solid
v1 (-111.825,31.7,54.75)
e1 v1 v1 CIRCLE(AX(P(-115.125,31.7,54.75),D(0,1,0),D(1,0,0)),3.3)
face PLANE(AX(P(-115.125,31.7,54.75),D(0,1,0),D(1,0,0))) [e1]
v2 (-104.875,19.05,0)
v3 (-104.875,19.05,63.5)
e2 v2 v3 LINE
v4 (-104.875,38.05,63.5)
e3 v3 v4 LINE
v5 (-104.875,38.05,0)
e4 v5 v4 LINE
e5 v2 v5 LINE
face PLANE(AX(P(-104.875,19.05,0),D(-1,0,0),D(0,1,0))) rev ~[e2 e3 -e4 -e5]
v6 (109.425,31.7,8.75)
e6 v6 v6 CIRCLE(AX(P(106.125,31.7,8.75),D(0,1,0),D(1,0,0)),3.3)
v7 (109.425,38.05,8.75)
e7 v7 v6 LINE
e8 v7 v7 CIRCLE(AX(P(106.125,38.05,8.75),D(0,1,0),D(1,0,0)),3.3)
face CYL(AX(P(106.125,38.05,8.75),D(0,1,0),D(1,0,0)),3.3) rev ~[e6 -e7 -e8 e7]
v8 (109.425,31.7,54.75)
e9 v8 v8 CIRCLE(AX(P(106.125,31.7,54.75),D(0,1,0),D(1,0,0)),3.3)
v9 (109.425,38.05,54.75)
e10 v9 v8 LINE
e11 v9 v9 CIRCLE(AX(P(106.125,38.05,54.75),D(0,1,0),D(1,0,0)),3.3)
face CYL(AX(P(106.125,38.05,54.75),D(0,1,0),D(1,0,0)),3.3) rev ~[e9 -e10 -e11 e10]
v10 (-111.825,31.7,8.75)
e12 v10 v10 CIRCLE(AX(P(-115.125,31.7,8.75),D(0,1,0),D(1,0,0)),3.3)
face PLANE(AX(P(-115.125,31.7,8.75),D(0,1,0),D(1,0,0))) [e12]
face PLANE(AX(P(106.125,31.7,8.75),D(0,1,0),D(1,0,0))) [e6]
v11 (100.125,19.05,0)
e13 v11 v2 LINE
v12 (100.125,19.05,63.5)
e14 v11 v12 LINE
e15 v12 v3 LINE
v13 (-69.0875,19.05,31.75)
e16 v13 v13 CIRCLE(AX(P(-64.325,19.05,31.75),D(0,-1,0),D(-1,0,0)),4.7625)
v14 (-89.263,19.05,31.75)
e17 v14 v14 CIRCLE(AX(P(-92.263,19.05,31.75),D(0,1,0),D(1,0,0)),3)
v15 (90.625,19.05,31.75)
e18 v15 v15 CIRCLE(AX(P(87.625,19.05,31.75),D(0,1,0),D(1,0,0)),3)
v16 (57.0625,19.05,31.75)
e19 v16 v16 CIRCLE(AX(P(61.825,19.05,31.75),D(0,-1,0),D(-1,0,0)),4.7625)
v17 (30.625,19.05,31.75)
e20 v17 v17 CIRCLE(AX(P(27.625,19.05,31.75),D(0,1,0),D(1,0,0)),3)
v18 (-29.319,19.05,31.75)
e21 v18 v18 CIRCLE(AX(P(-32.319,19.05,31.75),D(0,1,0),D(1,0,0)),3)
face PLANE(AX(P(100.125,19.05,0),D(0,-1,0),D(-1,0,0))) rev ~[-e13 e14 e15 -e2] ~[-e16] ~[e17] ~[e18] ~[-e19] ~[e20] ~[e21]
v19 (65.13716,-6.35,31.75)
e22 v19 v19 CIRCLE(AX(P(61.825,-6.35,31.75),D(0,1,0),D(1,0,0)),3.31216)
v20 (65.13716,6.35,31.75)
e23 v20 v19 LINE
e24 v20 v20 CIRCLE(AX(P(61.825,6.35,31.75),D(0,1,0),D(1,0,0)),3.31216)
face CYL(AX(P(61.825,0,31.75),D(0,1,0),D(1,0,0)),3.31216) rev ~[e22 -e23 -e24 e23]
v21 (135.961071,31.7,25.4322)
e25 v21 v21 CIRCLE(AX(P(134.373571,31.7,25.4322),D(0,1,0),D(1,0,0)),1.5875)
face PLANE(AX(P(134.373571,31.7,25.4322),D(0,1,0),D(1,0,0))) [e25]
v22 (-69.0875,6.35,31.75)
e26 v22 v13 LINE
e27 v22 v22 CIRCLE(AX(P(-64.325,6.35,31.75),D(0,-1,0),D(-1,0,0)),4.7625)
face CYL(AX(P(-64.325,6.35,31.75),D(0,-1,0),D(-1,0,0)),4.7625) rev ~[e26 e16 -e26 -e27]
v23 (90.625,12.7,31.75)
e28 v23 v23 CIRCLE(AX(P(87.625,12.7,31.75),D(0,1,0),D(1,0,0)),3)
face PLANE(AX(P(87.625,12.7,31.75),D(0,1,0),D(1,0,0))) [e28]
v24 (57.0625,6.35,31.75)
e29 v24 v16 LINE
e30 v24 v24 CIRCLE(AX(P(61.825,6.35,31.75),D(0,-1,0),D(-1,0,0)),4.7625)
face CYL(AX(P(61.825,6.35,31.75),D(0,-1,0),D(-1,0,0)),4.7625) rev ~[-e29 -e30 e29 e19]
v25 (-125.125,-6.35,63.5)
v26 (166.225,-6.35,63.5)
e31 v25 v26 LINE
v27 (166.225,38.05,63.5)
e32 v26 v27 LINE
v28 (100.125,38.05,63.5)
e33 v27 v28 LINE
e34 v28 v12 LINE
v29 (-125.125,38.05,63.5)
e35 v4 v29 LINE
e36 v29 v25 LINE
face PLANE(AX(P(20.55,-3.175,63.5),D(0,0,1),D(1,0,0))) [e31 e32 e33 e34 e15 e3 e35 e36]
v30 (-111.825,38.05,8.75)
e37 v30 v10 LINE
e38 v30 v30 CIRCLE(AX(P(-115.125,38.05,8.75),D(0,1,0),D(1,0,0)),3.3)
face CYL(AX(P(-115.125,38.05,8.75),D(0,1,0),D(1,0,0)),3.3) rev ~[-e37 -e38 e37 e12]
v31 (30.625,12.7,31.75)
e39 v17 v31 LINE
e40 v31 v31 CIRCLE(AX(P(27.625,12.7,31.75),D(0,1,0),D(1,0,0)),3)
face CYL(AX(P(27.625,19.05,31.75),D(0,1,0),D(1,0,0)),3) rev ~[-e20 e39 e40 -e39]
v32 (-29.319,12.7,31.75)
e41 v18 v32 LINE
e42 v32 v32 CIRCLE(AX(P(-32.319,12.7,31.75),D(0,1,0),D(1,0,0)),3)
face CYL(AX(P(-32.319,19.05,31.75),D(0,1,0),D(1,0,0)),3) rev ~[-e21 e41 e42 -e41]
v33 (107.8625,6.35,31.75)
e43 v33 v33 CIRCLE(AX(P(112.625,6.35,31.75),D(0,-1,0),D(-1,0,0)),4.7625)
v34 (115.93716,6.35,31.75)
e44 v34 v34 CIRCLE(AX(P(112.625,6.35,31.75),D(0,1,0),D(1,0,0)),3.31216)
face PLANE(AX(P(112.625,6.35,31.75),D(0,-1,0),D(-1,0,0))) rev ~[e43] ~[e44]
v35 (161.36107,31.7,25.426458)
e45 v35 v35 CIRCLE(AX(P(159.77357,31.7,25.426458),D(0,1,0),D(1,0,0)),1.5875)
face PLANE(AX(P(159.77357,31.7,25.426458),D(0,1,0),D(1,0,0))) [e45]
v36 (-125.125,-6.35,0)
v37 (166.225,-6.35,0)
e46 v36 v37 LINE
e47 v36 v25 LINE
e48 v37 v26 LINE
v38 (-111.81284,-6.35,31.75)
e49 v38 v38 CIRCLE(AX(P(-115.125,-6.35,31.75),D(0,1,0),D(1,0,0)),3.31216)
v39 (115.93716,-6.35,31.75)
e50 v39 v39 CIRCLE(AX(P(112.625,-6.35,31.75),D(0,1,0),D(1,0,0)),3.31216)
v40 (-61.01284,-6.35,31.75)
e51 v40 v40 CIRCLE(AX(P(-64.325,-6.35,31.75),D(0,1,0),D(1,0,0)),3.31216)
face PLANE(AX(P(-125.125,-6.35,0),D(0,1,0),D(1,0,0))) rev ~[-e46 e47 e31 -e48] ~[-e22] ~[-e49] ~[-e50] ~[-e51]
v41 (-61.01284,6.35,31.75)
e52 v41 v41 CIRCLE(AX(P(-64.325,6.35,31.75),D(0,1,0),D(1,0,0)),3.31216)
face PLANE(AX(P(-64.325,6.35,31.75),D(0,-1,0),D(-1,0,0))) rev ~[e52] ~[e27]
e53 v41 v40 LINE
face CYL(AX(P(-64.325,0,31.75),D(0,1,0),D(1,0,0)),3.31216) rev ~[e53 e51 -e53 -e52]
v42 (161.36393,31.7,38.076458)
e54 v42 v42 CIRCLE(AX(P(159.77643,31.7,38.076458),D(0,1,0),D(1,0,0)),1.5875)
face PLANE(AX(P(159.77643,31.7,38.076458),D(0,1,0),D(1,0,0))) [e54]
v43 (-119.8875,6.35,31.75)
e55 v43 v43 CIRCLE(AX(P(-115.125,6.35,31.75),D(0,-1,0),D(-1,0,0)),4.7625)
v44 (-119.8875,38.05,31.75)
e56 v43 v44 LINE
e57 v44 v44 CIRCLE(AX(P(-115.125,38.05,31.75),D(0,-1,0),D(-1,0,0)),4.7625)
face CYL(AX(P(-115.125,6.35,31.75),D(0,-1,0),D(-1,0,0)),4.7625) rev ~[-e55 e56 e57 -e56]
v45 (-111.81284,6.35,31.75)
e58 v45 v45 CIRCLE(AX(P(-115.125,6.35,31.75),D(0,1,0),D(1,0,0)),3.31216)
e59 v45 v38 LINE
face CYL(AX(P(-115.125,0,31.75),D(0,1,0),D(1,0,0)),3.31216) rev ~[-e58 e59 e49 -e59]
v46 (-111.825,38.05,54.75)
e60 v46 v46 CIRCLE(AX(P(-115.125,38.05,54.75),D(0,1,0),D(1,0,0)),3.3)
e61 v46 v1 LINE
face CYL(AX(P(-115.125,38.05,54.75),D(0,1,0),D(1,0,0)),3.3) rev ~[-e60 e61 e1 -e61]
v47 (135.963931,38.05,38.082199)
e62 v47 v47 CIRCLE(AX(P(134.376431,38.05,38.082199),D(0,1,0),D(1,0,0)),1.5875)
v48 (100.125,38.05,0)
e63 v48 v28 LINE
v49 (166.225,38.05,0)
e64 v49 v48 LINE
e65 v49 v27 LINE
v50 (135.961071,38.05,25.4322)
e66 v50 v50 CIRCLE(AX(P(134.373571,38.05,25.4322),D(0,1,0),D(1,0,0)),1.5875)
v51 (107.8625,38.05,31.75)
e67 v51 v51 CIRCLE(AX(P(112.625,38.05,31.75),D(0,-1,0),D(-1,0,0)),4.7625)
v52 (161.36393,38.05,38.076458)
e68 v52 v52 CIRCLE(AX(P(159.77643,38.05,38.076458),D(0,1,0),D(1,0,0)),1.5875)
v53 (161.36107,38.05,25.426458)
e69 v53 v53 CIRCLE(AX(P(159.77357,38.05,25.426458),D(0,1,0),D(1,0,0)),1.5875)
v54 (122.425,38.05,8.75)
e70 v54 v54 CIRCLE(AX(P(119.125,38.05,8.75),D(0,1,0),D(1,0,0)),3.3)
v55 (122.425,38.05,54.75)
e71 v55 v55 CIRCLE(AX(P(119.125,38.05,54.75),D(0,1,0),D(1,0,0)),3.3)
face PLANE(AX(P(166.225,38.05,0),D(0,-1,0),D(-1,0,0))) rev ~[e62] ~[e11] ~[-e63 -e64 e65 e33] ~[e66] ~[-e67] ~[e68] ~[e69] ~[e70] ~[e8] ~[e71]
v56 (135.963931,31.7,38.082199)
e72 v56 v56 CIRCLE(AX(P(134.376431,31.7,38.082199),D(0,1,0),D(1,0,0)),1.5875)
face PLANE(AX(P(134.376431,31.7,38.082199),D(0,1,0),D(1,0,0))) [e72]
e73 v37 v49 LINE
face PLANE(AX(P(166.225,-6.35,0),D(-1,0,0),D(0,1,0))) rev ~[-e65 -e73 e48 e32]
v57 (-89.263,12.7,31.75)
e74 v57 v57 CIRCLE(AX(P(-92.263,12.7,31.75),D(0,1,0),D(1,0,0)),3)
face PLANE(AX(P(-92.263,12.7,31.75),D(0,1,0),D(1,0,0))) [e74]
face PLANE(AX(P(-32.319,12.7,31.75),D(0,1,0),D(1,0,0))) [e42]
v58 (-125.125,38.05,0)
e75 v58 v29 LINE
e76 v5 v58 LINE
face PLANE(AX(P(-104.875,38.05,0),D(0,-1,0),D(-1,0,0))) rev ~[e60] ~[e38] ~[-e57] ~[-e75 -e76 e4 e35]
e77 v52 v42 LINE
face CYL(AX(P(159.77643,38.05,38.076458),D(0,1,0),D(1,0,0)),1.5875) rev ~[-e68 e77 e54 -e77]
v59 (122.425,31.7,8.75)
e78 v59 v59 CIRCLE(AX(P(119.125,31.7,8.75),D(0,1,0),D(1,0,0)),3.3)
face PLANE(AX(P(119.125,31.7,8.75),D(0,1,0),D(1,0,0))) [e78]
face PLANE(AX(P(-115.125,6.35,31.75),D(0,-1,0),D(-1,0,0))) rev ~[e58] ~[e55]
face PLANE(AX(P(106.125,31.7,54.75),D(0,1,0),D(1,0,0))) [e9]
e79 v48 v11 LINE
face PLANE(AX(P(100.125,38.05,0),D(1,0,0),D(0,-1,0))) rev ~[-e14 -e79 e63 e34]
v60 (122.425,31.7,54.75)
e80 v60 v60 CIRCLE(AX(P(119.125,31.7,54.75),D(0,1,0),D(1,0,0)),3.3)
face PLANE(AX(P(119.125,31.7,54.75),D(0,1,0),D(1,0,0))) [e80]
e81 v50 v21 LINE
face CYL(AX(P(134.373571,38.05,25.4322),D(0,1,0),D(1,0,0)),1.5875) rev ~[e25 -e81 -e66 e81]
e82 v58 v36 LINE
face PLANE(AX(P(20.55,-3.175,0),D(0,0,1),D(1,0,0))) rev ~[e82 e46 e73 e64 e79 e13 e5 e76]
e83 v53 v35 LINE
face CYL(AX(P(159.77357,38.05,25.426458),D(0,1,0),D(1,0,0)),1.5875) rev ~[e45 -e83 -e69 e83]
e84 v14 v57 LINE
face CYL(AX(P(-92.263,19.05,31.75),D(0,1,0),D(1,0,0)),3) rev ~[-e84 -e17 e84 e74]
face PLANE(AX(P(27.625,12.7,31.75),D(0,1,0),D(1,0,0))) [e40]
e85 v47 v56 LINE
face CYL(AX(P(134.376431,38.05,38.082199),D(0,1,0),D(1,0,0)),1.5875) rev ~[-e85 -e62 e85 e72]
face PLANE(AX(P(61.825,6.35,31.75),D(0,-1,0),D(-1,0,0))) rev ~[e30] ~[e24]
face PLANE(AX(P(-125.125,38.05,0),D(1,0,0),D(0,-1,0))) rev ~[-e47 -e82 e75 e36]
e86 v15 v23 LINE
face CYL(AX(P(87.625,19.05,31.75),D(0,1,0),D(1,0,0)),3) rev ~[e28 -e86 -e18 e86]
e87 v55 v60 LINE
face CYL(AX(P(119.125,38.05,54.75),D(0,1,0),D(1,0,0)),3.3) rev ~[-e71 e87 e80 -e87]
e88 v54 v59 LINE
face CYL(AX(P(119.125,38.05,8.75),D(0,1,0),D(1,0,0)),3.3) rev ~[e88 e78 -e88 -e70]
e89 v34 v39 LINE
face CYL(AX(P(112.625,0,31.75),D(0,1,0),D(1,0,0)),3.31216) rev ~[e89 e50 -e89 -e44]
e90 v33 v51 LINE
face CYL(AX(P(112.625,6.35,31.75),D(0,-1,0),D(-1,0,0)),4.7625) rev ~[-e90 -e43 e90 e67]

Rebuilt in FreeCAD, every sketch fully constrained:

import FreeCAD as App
import Part
import Sketcher
from FreeCAD import Vector

doc = App.newDocument("Part")
body = doc.addObject("PartDesign::Body", "Body")

# Sketch on XY plane
sketch1 = doc.addObject("Sketcher::SketchObject", "Sketch")
body.addObject(sketch1)
sketch1.AttachmentSupport = (doc.XY_Plane, [""])
sketch1.MapMode = "FlatFace"
sketch1.addGeometry([
    Part.LineSegment(Vector(-125, -6, 0), Vector(166, -6, 0)),  # 0
    Part.LineSegment(Vector(166, -6, 0), Vector(166, 38, 0)),  # 1
    Part.LineSegment(Vector(166, 38, 0), Vector(100, 38, 0)),  # 2
    Part.LineSegment(Vector(100, 38, 0), Vector(100, 19, 0)),  # 3
    Part.LineSegment(Vector(100, 19, 0), Vector(-105, 19, 0)),  # 4
    Part.LineSegment(Vector(-105, 19, 0), Vector(-105, 38, 0)),  # 5
    Part.LineSegment(Vector(-105, 38, 0), Vector(-125, 38, 0)),  # 6
    Part.LineSegment(Vector(-125, 38, 0), Vector(-125, -6, 0)),  # 7
], False)
sketch1.addConstraint([
    Sketcher.Constraint("Coincident", 0, 2, 1, 1),
    Sketcher.Constraint("Coincident", 1, 2, 2, 1),
    Sketcher.Constraint("Coincident", 2, 2, 3, 1),
    Sketcher.Constraint("Coincident", 3, 2, 4, 1),
    Sketcher.Constraint("Coincident", 4, 2, 5, 1),
    Sketcher.Constraint("Coincident", 5, 2, 6, 1),
    Sketcher.Constraint("Coincident", 6, 2, 7, 1),
    Sketcher.Constraint("Coincident", 7, 2, 0, 1),
    Sketcher.Constraint("Horizontal", 0),
    Sketcher.Constraint("Vertical", 1),
    Sketcher.Constraint("Horizontal", 2),
    Sketcher.Constraint("Vertical", 3),
    Sketcher.Constraint("Horizontal", 4),
    Sketcher.Constraint("Vertical", 5),
    Sketcher.Constraint("Horizontal", 6),
    Sketcher.Constraint("Vertical", 7),
    Sketcher.Constraint("Horizontal", 2, 2, 5, 2),
    Sketcher.Constraint("DistanceX", 4, 2, 4, 1, 205.0),
    Sketcher.Constraint("DistanceY", 3, 2, 3, 1, 19.0),
    Sketcher.Constraint("DistanceX", 2, 2, 2, 1, 66.1),
    Sketcher.Constraint("DistanceY", 1, 1, 1, 2, 44.4),
    Sketcher.Constraint("DistanceX", 0, 1, 0, 2, 291.35),
    Sketcher.Constraint("DistanceY", 0, 2, -1, 1, 6.35),
    Sketcher.Constraint("DistanceX", -1, 1, 0, 2, 166.225),
])
pad1 = doc.addObject("PartDesign::Pad", "Pad")
body.addObject(pad1)
pad1.Profile = sketch1
pad1.Length = 63.5

# Sketch on XZ plane
sketch2 = doc.addObject("Sketcher::SketchObject", "Sketch001")
body.addObject(sketch2)
sketch2.AttachmentSupport = (doc.XZ_Plane, [""])
sketch2.MapMode = "FlatFace"
sketch2.AttachmentOffset = App.Placement(Vector(0, 0, -38.05), App.Rotation())
sketch2.addGeometry([
    Part.Circle(Vector(106.1, 54.8, 0), Vector(0, 0, 1), 3.3),  # 0
    Part.Circle(Vector(119.1, 54.8, 0), Vector(0, 0, 1), 3.3),  # 1
    Part.Circle(Vector(106.1, 8.8, 0), Vector(0, 0, 1), 3.3),  # 2
    Part.Circle(Vector(119.1, 8.8, 0), Vector(0, 0, 1), 3.3),  # 3
    Part.Circle(Vector(-115.1, 54.8, 0), Vector(0, 0, 1), 3.3),  # 4
    Part.Circle(Vector(-115.1, 8.8, 0), Vector(0, 0, 1), 3.3),  # 5
], False)
sketch2.addConstraint([
    Sketcher.Constraint("Equal", 0, 1),
    Sketcher.Constraint("Equal", 1, 2),
    Sketcher.Constraint("Equal", 2, 3),
    Sketcher.Constraint("Equal", 3, 4),
    Sketcher.Constraint("Equal", 4, 5),
    Sketcher.Constraint("Horizontal", 0, 3, 1, 3),
    Sketcher.Constraint("Horizontal", 2, 3, 3, 3),
    Sketcher.Constraint("Horizontal", 1, 3, 4, 3),
    Sketcher.Constraint("Horizontal", 3, 3, 5, 3),
    Sketcher.Constraint("Vertical", 0, 3, 2, 3),
    Sketcher.Constraint("Vertical", 1, 3, 3, 3),
    Sketcher.Constraint("Vertical", 4, 3, 5, 3),
    Sketcher.Constraint("Diameter", 0, 6.6),
    Sketcher.Constraint("DistanceX", 0, 3, 1, 3, 13.0),
    Sketcher.Constraint("DistanceY", 2, 3, 0, 3, 46.0),
    Sketcher.Constraint("DistanceY", -1, 1, 0, 3, 54.75),
    Sketcher.Constraint("DistanceX", 4, 3, 0, 3, 221.25),
    Sketcher.Constraint("DistanceX", -1, 1, 0, 3, 106.125),
])
pocket1 = doc.addObject("PartDesign::Pocket", "Pocket")
body.addObject(pocket1)
pocket1.Profile = sketch2
pocket1.Length = 6.35
pocket1.Reversed = True

# Sketch on XZ plane
sketch3 = doc.addObject("Sketcher::SketchObject", "Sketch002")
body.addObject(sketch3)
sketch3.AttachmentSupport = (doc.XZ_Plane, [""])
sketch3.MapMode = "FlatFace"
sketch3.AttachmentOffset = App.Placement(Vector(0, 0, -38.05), App.Rotation())
sketch3.addGeometry([
    Part.Circle(Vector(134.4, 25.4, 0), Vector(0, 0, 1), 1.6),
    Part.Circle(Vector(159.8, 25.4, 0), Vector(0, 0, 1), 1.6),
    Part.Circle(Vector(159.8, 38.1, 0), Vector(0, 0, 1), 1.6),
    Part.Circle(Vector(134.4, 38.1, 0), Vector(0, 0, 1), 1.6),
], False)
sketch3.addConstraint([
    Sketcher.Constraint("Equal", 0, 1),
    Sketcher.Constraint("Equal", 1, 2),
    Sketcher.Constraint("Equal", 2, 3),
    Sketcher.Constraint("Diameter", 0, 3.175),
    Sketcher.Constraint("DistanceX", 0, 3, 1, 3, 25.399999),
    Sketcher.Constraint("DistanceX", 3, 3, 2, 3, 25.399999),
    Sketcher.Constraint("DistanceY", 1, 3, 2, 3, 12.65),
    Sketcher.Constraint("DistanceY", 0, 3, 3, 3, 12.65),
    Sketcher.Constraint("DistanceY", -1, 1, 0, 3, 25.4322),
    Sketcher.Constraint("DistanceX", -1, 1, 0, 3, 134.373571),
    Sketcher.Constraint("DistanceY", -1, 1, 1, 3, 25.426458),
    Sketcher.Constraint("DistanceX", -1, 1, 2, 3, 159.77643),
])
pocket2 = doc.addObject("PartDesign::Pocket", "Pocket001")
body.addObject(pocket2)
pocket2.Profile = sketch3
pocket2.Length = 6.35
pocket2.Reversed = True

# Sketch on XZ plane
sketch4 = doc.addObject("Sketcher::SketchObject", "Sketch003")
body.addObject(sketch4)
sketch4.AttachmentSupport = (doc.XZ_Plane, [""])
sketch4.MapMode = "FlatFace"
sketch4.AttachmentOffset = App.Placement(Vector(0, 0, -19.05), App.Rotation())
sketch4.addGeometry([
    Part.Circle(Vector(87.6, 31.8, 0), Vector(0, 0, 1), 3),
    Part.Circle(Vector(27.6, 31.8, 0), Vector(0, 0, 1), 3),
    Part.Circle(Vector(-32.3, 31.8, 0), Vector(0, 0, 1), 3),
    Part.Circle(Vector(-92.3, 31.8, 0), Vector(0, 0, 1), 3),
], False)
sketch4.addConstraint([
    Sketcher.Constraint("Equal", 0, 1),
    Sketcher.Constraint("Equal", 1, 2),
    Sketcher.Constraint("Equal", 2, 3),
    Sketcher.Constraint("Horizontal", 0, 3, 1, 3),
    Sketcher.Constraint("Horizontal", 1, 3, 2, 3),
    Sketcher.Constraint("Horizontal", 2, 3, 3, 3),
    Sketcher.Constraint("Diameter", 0, 6.0),
    Sketcher.Constraint("DistanceX", 1, 3, 0, 3, 60.0),
    Sketcher.Constraint("DistanceY", -1, 1, 0, 3, 31.75),
    Sketcher.Constraint("DistanceX", -1, 1, 0, 3, 87.625),
    Sketcher.Constraint("DistanceX", 2, 3, -1, 1, 32.319),
    Sketcher.Constraint("DistanceX", 3, 3, -1, 1, 92.263),
])
pocket3 = doc.addObject("PartDesign::Pocket", "Pocket002")
body.addObject(pocket3)
pocket3.Profile = sketch4
pocket3.Length = 6.35
pocket3.Reversed = True

# Sketch on XZ plane
sketch5 = doc.addObject("Sketcher::SketchObject", "Sketch004")
body.addObject(sketch5)
sketch5.AttachmentSupport = (doc.XZ_Plane, [""])
sketch5.MapMode = "FlatFace"
sketch5.addGeometry([
    Part.Circle(Vector(-115.1, 31.8, 0), Vector(0, 0, 1), 3.3),
    Part.Circle(Vector(-64.3, 31.8, 0), Vector(0, 0, 1), 3.3),
    Part.Circle(Vector(61.8, 31.8, 0), Vector(0, 0, 1), 3.3),
    Part.Circle(Vector(112.6, 31.8, 0), Vector(0, 0, 1), 3.3),
], False)
sketch5.addConstraint([
    Sketcher.Constraint("Equal", 0, 1),
    Sketcher.Constraint("Equal", 1, 2),
    Sketcher.Constraint("Equal", 2, 3),
    Sketcher.Constraint("Horizontal", 0, 3, 1, 3),
    Sketcher.Constraint("Horizontal", 1, 3, 2, 3),
    Sketcher.Constraint("Horizontal", 2, 3, 3, 3),
    Sketcher.Constraint("DistanceX", 0, 3, 1, 3, 50.8),
    Sketcher.Constraint("DistanceX", 2, 3, 3, 3, 50.8),
    Sketcher.Constraint("Diameter", 0, 6.62432),
    Sketcher.Constraint("DistanceY", -1, 1, 0, 3, 31.75),
    Sketcher.Constraint("DistanceX", 1, 3, 2, 3, 126.15),
    Sketcher.Constraint("DistanceX", 0, 3, -1, 1, 115.125),
])
pocket4 = doc.addObject("PartDesign::Pocket", "Pocket003")
body.addObject(pocket4)
pocket4.Profile = sketch5
pocket4.Type = "ThroughAll"
pocket4.Midplane = True

# Sketch on XZ plane
sketch6 = doc.addObject("Sketcher::SketchObject", "Sketch005")
body.addObject(sketch6)
sketch6.AttachmentSupport = (doc.XZ_Plane, [""])
sketch6.MapMode = "FlatFace"
sketch6.AttachmentOffset = App.Placement(Vector(0, 0, -6.35), App.Rotation())
sketch6.addGeometry([
    Part.Circle(Vector(-115.1, 31.8, 0), Vector(0, 0, 1), 4.8),
    Part.Circle(Vector(-64.3, 31.8, 0), Vector(0, 0, 1), 4.8),
    Part.Circle(Vector(112.6, 31.8, 0), Vector(0, 0, 1), 4.8),
    Part.Circle(Vector(61.8, 31.8, 0), Vector(0, 0, 1), 4.8),
], False)
sketch6.addConstraint([
    Sketcher.Constraint("Equal", 0, 1),
    Sketcher.Constraint("Equal", 1, 2),
    Sketcher.Constraint("Equal", 2, 3),
    Sketcher.Constraint("Horizontal", 0, 3, 1, 3),
    Sketcher.Constraint("Horizontal", 1, 3, 2, 3),
    Sketcher.Constraint("Horizontal", 2, 3, 3, 3),
    Sketcher.Constraint("Diameter", 0, 9.525),
    Sketcher.Constraint("DistanceX", 0, 3, 1, 3, 50.8),
    Sketcher.Constraint("DistanceX", 3, 3, 2, 3, 50.8),
    Sketcher.Constraint("DistanceY", -1, 1, 0, 3, 31.75),
    Sketcher.Constraint("DistanceX", 1, 3, 2, 3, 176.95),
    Sketcher.Constraint("DistanceX", 0, 3, -1, 1, 115.125),
])
pocket5 = doc.addObject("PartDesign::Pocket", "Pocket004")
body.addObject(pocket5)
pocket5.Profile = sketch6
pocket5.Type = "ThroughAll"

doc.recompute()
